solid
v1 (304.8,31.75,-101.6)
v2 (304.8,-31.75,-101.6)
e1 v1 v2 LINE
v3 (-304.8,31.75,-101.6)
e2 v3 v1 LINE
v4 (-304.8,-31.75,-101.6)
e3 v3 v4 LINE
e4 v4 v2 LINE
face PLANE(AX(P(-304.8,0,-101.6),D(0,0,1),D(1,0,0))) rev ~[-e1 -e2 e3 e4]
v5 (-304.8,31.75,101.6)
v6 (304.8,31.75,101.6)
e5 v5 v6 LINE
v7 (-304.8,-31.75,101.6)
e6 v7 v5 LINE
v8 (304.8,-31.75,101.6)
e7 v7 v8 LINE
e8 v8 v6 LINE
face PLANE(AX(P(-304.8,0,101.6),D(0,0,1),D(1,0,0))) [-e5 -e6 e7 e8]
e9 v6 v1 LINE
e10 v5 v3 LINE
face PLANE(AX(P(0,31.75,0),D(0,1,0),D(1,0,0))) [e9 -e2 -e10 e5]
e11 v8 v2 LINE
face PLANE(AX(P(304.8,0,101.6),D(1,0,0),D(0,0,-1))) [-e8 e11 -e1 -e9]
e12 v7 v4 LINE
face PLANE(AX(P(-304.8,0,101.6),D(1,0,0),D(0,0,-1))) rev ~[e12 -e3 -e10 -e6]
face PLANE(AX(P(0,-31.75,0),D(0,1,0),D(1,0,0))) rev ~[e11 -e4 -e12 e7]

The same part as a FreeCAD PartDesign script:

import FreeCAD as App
import Part
import Sketcher
from FreeCAD import Vector
Q = App.Units.Quantity

doc = App.newDocument("Part")
body = doc.addObject("PartDesign::Body", "Body")

# Sketch on XZ plane
sketch1 = body.newObject("Sketcher::SketchObject", "Sketch")
sketch1.AttachmentSupport = (doc.getObject("XZ_Plane"), [""])
sketch1.MapMode = "FlatFace"
sketch1.addGeometry([
    Part.LineSegment(Vector(-305, -102, 0), Vector(-305, 102, 0)),
    Part.LineSegment(Vector(-305, 102, 0), Vector(305, 102, 0)),
    Part.LineSegment(Vector(305, 102, 0), Vector(305, -102, 0)),
    Part.LineSegment(Vector(305, -102, 0), Vector(-305, -102, 0)),
], False)
sketch1.addConstraint([
    Sketcher.Constraint("Coincident", 0, 2, 1, 1),
    Sketcher.Constraint("Coincident", 1, 2, 2, 1),
    Sketcher.Constraint("Coincident", 2, 2, 3, 1),
    Sketcher.Constraint("Coincident", 3, 2, 0, 1),
    Sketcher.Constraint("Vertical", 0),
    Sketcher.Constraint("Horizontal", 1),
    Sketcher.Constraint("Vertical", 2),
    Sketcher.Constraint("Horizontal", 3),
    Sketcher.Constraint("Symmetric", 0, 2, 2, 2, -1, 1),
    Sketcher.Constraint("DistanceX", 1, 1, 1, 2, Q("24 in")),
    Sketcher.Constraint("DistanceY", 0, 1, 0, 2, Q("8 in")),
])
pad1 = body.newObject("PartDesign::Pad", "Pad")
pad1.Profile = sketch1
pad1.Length = Q("2.5 in")
pad1.Midplane = True

doc.recompute()
